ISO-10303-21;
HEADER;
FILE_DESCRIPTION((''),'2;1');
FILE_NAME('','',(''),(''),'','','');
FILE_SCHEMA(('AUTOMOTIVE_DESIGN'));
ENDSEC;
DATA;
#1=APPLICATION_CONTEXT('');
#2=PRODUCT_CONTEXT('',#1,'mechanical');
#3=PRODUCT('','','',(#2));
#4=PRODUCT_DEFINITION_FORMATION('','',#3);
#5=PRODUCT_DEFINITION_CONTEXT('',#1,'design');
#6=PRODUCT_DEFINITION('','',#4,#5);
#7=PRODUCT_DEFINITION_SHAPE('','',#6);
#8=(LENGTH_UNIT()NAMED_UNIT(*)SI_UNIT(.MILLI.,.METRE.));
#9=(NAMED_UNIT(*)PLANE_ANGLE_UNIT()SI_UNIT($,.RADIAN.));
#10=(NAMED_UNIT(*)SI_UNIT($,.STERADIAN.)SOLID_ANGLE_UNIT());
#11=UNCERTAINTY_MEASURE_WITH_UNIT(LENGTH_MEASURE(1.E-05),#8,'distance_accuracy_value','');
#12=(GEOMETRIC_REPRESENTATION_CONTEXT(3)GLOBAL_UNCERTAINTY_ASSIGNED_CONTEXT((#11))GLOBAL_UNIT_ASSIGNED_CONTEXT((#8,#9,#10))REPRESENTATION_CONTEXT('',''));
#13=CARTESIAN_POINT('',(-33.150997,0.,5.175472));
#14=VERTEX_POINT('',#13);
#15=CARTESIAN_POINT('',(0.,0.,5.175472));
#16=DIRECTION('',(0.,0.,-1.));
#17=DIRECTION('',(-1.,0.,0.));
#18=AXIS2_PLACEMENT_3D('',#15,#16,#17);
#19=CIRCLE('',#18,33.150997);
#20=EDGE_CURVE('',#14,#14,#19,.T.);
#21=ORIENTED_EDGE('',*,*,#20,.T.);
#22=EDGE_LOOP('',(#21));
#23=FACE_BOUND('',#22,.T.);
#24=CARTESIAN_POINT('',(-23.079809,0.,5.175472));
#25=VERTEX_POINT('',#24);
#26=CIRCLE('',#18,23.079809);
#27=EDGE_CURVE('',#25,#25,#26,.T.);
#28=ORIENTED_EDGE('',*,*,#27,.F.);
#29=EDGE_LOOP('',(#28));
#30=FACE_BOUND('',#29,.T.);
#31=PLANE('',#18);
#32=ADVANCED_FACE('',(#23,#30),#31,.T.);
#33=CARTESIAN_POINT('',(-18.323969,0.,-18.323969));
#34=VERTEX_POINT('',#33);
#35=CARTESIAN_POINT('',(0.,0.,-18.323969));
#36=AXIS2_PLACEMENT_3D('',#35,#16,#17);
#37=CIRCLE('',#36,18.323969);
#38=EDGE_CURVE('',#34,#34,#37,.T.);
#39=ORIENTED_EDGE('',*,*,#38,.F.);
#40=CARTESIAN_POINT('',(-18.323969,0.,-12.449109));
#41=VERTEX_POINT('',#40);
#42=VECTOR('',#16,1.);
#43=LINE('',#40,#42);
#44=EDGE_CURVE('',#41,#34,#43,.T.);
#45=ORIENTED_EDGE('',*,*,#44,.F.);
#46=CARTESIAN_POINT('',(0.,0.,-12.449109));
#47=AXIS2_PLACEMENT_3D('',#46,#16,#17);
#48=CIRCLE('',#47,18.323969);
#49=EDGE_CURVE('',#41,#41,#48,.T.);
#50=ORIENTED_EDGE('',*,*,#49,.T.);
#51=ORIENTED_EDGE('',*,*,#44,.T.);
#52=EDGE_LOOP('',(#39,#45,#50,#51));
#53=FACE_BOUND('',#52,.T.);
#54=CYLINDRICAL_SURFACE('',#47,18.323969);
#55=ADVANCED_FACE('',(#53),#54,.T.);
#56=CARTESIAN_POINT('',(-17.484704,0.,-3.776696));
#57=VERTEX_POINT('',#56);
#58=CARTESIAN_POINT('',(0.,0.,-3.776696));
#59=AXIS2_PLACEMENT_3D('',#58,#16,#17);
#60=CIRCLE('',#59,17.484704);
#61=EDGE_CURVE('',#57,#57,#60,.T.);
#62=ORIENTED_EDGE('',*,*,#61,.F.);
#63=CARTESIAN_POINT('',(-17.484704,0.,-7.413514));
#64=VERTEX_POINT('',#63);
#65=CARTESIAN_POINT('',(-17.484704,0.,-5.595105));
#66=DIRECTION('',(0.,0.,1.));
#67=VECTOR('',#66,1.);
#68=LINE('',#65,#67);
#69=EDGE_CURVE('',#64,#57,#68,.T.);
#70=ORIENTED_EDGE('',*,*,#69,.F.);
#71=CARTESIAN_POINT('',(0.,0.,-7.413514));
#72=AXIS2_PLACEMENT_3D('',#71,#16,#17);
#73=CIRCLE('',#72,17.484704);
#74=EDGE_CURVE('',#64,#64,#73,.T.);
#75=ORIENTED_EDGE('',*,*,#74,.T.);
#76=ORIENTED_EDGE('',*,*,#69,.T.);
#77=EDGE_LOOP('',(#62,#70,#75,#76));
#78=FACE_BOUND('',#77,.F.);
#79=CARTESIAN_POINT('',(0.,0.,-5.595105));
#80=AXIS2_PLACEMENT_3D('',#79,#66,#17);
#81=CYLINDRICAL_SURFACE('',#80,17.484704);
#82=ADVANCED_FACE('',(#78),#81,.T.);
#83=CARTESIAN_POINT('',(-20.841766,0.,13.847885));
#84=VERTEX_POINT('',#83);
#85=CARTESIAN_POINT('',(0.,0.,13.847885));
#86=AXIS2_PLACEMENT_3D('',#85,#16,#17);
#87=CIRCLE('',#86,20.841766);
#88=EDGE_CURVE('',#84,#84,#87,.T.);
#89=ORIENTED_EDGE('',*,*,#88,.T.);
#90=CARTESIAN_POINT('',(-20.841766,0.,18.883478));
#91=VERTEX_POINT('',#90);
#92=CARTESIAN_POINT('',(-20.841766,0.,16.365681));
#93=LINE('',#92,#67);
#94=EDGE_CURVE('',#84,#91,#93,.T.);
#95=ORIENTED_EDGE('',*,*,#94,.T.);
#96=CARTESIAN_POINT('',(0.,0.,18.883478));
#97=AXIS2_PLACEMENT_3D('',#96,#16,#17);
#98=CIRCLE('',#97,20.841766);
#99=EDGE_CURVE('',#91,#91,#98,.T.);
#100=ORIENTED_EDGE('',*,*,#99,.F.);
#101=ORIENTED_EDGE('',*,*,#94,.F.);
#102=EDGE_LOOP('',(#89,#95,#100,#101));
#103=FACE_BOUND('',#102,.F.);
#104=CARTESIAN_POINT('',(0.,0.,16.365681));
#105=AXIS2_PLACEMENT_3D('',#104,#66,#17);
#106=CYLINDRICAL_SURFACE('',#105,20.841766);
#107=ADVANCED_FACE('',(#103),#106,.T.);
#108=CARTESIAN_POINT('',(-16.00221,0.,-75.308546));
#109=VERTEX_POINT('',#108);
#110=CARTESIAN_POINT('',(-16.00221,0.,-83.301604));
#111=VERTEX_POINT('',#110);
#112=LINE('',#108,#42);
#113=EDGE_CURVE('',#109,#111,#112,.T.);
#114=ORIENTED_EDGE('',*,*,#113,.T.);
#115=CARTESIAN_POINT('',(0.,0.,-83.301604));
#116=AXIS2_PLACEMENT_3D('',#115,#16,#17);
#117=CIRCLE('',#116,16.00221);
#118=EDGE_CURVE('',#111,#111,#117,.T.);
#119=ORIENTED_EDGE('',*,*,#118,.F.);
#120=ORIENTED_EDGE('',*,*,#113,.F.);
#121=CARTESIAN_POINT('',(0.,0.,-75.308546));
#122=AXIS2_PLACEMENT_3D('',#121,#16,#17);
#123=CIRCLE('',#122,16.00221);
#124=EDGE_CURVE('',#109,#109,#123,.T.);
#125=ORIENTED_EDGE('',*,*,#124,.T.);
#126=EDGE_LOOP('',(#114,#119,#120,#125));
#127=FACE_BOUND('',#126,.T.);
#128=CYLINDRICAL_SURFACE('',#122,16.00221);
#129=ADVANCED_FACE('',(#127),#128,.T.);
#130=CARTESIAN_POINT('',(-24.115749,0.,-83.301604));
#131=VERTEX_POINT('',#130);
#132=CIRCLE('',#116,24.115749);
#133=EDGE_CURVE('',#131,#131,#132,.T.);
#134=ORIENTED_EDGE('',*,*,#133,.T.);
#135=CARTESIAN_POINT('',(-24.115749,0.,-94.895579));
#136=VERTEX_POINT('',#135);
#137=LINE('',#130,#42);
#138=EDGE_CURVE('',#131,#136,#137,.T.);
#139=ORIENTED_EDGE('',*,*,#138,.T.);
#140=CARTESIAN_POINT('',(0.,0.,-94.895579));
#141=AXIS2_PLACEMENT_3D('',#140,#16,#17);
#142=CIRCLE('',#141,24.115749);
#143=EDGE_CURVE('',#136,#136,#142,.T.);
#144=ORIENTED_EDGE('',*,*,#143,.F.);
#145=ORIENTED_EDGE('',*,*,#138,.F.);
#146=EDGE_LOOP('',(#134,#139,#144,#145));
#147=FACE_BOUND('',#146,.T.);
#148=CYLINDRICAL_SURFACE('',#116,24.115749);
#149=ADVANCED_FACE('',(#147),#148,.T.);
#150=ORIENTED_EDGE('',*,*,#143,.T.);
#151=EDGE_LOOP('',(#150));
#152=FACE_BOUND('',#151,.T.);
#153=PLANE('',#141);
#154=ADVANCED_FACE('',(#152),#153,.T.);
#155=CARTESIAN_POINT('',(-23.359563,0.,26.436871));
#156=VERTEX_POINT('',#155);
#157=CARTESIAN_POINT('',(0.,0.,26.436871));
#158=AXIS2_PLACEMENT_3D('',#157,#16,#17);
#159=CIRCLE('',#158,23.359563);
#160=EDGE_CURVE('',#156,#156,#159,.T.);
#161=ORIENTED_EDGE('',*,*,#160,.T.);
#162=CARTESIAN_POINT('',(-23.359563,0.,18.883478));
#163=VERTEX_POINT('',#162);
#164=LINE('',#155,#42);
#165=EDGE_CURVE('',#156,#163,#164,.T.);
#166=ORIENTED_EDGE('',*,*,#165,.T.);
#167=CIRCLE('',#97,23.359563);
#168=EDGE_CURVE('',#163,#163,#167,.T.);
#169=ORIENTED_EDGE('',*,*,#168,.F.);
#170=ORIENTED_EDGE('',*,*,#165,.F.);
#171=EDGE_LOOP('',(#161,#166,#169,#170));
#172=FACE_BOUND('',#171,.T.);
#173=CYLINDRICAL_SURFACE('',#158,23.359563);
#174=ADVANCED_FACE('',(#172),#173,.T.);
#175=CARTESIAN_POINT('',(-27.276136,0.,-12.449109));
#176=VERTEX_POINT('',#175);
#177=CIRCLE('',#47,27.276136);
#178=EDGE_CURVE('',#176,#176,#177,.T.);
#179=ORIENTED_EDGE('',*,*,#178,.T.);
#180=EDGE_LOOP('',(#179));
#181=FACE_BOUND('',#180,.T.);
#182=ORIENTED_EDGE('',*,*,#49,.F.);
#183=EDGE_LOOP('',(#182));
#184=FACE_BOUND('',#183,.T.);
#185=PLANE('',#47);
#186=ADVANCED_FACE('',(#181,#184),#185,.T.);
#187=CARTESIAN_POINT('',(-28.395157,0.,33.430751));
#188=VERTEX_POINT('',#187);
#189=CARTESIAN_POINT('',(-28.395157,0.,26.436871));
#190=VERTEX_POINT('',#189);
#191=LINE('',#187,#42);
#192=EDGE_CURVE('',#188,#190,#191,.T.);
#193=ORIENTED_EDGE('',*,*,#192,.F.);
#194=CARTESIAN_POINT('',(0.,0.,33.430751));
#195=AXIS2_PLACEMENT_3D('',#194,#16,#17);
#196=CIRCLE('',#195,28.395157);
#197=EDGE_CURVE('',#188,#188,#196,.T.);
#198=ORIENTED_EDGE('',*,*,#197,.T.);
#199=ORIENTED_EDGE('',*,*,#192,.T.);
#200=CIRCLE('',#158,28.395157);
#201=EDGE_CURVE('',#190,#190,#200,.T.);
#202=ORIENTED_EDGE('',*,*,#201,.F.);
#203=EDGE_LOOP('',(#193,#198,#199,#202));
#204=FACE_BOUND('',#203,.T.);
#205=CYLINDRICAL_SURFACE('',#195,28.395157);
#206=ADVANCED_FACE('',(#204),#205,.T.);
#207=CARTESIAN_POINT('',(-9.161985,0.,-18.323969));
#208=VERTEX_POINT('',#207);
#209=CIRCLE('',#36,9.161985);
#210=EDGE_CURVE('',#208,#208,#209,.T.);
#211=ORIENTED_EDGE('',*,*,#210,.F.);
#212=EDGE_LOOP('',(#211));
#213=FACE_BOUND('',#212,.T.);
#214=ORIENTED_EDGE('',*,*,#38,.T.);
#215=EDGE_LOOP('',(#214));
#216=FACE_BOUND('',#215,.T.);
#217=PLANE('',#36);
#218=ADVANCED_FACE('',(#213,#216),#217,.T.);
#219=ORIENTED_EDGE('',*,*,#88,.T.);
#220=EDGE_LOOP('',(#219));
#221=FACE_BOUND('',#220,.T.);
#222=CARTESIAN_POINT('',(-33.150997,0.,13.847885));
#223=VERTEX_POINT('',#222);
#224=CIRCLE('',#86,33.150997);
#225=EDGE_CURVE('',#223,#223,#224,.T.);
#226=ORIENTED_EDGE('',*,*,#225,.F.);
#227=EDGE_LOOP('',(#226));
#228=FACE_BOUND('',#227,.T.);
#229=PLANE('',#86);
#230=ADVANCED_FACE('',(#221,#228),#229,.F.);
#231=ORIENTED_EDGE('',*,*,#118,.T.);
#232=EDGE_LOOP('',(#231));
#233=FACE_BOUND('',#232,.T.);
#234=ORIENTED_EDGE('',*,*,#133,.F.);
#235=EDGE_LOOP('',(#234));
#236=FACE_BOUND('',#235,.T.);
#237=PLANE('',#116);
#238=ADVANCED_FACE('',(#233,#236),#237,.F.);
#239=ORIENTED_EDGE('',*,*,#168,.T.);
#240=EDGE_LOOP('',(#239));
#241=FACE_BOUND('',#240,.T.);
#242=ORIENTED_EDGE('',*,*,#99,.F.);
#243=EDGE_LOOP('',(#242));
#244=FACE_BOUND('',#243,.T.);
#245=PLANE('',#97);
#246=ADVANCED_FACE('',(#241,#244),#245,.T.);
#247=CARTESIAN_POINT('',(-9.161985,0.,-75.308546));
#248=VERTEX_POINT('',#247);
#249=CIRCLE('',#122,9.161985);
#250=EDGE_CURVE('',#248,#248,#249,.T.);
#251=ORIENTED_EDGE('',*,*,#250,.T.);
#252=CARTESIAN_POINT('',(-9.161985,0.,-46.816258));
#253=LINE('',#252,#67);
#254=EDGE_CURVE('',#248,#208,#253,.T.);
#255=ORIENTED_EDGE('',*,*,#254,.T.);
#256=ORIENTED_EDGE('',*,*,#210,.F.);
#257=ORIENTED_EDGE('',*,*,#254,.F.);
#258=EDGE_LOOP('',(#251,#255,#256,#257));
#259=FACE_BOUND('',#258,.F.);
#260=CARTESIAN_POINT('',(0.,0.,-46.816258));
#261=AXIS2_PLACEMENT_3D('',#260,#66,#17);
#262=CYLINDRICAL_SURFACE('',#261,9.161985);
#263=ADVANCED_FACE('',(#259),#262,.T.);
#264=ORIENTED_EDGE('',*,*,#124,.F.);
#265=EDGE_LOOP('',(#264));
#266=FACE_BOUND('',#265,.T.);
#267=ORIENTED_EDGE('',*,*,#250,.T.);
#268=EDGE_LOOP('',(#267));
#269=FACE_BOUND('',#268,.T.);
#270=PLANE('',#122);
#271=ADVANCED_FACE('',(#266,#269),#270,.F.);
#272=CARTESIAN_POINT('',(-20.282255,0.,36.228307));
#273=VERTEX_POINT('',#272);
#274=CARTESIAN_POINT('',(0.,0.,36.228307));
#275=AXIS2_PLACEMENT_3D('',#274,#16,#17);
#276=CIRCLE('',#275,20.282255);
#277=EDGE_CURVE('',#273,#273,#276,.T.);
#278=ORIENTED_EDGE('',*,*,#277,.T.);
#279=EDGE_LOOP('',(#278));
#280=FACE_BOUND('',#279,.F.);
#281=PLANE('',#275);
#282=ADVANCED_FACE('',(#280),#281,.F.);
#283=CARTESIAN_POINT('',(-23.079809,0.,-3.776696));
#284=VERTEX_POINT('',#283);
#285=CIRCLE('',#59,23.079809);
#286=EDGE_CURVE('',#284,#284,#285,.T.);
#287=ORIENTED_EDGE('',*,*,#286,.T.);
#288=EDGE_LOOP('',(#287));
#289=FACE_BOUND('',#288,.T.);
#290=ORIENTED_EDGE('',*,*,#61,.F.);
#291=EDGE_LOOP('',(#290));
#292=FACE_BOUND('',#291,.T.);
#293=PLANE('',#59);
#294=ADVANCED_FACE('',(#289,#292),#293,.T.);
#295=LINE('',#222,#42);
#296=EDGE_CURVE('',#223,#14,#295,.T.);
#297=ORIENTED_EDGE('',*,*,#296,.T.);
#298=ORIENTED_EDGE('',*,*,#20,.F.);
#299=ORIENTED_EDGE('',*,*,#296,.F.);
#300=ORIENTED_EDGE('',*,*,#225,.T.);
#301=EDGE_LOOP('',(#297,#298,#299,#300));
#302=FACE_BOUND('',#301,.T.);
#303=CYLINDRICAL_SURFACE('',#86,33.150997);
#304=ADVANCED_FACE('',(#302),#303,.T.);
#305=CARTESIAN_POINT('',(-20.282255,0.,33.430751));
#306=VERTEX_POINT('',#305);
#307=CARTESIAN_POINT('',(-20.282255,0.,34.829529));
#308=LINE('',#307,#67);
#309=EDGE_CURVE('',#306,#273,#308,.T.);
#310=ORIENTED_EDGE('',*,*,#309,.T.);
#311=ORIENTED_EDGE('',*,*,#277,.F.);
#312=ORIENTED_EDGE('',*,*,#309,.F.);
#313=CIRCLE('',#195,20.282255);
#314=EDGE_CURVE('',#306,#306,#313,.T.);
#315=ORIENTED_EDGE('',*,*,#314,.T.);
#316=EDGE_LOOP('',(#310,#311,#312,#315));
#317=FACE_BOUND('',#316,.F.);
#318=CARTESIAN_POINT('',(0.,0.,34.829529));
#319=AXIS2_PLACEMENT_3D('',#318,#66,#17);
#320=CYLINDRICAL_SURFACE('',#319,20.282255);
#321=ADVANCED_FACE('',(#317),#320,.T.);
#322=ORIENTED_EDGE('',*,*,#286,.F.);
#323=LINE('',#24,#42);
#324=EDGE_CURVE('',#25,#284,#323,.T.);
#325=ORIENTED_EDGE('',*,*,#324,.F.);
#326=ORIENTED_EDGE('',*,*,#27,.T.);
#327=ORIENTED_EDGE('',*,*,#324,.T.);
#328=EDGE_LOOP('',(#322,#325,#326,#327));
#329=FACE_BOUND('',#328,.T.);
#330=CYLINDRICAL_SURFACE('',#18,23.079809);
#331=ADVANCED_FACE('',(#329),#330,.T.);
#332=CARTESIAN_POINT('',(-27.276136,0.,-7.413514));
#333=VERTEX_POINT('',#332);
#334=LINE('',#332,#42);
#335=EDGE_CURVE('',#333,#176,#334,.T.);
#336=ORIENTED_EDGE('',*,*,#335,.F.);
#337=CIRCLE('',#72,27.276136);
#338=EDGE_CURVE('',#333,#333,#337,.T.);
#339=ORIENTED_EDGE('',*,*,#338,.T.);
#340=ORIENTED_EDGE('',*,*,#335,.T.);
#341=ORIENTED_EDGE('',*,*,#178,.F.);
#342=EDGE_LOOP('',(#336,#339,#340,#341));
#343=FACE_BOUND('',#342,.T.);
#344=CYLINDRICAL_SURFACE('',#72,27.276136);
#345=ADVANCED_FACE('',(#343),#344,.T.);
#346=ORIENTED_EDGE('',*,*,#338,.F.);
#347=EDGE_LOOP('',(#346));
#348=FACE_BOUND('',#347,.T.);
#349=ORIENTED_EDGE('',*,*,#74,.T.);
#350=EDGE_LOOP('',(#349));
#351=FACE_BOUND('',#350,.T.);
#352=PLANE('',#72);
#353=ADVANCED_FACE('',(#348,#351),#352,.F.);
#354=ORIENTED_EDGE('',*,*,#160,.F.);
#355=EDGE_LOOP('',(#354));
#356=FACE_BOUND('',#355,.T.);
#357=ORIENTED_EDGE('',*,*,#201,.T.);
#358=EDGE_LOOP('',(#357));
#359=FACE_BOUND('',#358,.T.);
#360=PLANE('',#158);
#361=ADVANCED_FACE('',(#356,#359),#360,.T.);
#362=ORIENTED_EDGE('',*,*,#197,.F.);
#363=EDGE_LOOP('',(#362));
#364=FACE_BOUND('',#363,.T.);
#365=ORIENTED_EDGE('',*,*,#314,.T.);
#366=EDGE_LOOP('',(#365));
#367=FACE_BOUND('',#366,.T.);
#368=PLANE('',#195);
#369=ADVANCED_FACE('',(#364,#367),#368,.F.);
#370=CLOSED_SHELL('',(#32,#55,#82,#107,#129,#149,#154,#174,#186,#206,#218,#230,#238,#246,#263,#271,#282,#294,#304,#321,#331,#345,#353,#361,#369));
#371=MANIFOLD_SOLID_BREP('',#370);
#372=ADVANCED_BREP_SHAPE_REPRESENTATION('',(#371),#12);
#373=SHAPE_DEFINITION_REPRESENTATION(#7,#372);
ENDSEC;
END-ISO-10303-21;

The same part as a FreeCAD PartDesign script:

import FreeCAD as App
import Part
import Sketcher

V = App.Vector


def add_polygon(sketch, points):
    """Adds a closed chain of lines whose ends are joined by coincident constraints."""
    first, n = sketch.GeometryCount, len(points)
    for a, b in zip(points, points[1:] + points[:1]):
        sketch.addGeometry(Part.LineSegment(App.Vector(*a, 0), App.Vector(*b, 0)), False)
    for i in range(n):
        sketch.addConstraint(Sketcher.Constraint("Coincident", first + i, 2, first + (i + 1) % n, 1))

doc = App.newDocument("Part")
body = doc.addObject("PartDesign::Body", "Body")

sketch1 = doc.addObject("Sketcher::SketchObject", "Sketch")
body.addObject(sketch1)
sketch1.AttachmentSupport = (doc.XZ_Plane, [""])
sketch1.MapMode = "FlatFace"
add_polygon(sketch1, [(-20.282255, 36.228307), (-20.282255, 33.430751), (-28.395157, 33.430751), (-28.395157, 26.436871), (-23.359563, 26.436871), (-23.359563, 18.883478), (-20.841766, 18.883478), (-20.841766, 13.847885), (-33.150997, 13.847885), (-33.150997, 5.175472), (-23.079809, 5.175472), (-23.079809, -3.776696), (-17.484704, -3.776696), (-17.484704, -7.413514), (-27.276136, -7.413514), (-27.276136, -12.449109), (-18.323969, -12.449109), (-18.323969, -18.323969), (-9.161985, -18.323969), (-9.161985, -75.308546), (-16.00221, -75.308546), (-16.00221, -83.301604), (-24.115749, -83.301604), (-24.115749, -94.895579), (0, -94.895579), (0, -18.323969), (0, -7.413514), (0, -3.776696), (0, 18.883478), (0, 33.430751), (0, 36.228307)])
sketch1.addConstraint([
    Sketcher.Constraint("Vertical", 0),
    Sketcher.Constraint("Horizontal", 1),
    Sketcher.Constraint("Vertical", 2),
    Sketcher.Constraint("Horizontal", 3),
    Sketcher.Constraint("Vertical", 4),
    Sketcher.Constraint("Horizontal", 5),
    Sketcher.Constraint("Vertical", 6),
    Sketcher.Constraint("Horizontal", 7),
    Sketcher.Constraint("Vertical", 8),
    Sketcher.Constraint("Horizontal", 9),
    Sketcher.Constraint("Vertical", 10),
    Sketcher.Constraint("Horizontal", 11),
    Sketcher.Constraint("Vertical", 12),
    Sketcher.Constraint("Horizontal", 13),
    Sketcher.Constraint("Vertical", 14),
    Sketcher.Constraint("Horizontal", 15),
    Sketcher.Constraint("Vertical", 16),
    Sketcher.Constraint("Horizontal", 17),
    Sketcher.Constraint("Vertical", 18),
    Sketcher.Constraint("Horizontal", 19),
    Sketcher.Constraint("Vertical", 20),
    Sketcher.Constraint("Horizontal", 21),
    Sketcher.Constraint("Vertical", 22),
    Sketcher.Constraint("Horizontal", 23),
    Sketcher.Constraint("Vertical", 24),
    Sketcher.Constraint("Vertical", 25),
    Sketcher.Constraint("Vertical", 26),
    Sketcher.Constraint("Vertical", 27),
    Sketcher.Constraint("Vertical", 28),
    Sketcher.Constraint("Vertical", 29),
    Sketcher.Constraint("Horizontal", 30),
    Sketcher.Constraint("PointOnObject", 23, 2, -2),
    Sketcher.Constraint("Horizontal", 17, 2, 24, 2),
    Sketcher.Constraint("Horizontal", 13, 2, 25, 2),
    Sketcher.Constraint("Horizontal", 11, 2, 26, 2),
    Sketcher.Constraint("Horizontal", 5, 2, 27, 2),
    Sketcher.Constraint("Horizontal", 1, 2, 28, 2),
    Sketcher.Constraint("Equal", 3, 6),
    Sketcher.Constraint("Equal", 15, 10),
    Sketcher.Constraint("Equal", 6, 14),
    Sketcher.Constraint("DistanceX", 1, 2, 1, 1, 8.112902),
    Sketcher.Constraint("DistanceX", 7, 2, 7, 1, 12.309231),
    Sketcher.Constraint("DistanceX", 9, 1, 9, 2, 10.071188),
    Sketcher.Constraint("DistanceX", 13, 2, 13, 1, 9.791432),
    Sketcher.Constraint("DistanceX", 21, 2, 21, 1, 8.113539),
    Sketcher.Constraint("DistanceX", 23, 1, 23, 2, 24.115749),
    Sketcher.Constraint("DistanceY", 2, 2, 2, 1, 6.99388),
    Sketcher.Constraint("DistanceY", 10, 2, 10, 1, 8.952168),
    Sketcher.Constraint("DistanceY", 12, 2, 12, 1, 3.636818),
    Sketcher.Constraint("DistanceY", 16, 2, 16, 1, 5.87486),
    Sketcher.Constraint("DistanceY", 24, 1, 24, 2, 76.57161),
    Sketcher.Constraint("DistanceY", 8, 2, 2, 2, 21.261399),
    Sketcher.Constraint("DistanceY", 12, 2, 6, 2, 21.261399),
    Sketcher.Constraint("DistanceX", 3, 1, 3, 2, 5.035594),
    Sketcher.Constraint("DistanceX", 5, 1, 5, 2, 2.517797),
    Sketcher.Constraint("DistanceX", 11, 1, 11, 2, 5.595105),
    Sketcher.Constraint("DistanceX", 17, 1, 17, 2, 9.161985),
    Sketcher.Constraint("DistanceX", 19, 2, 19, 1, 6.840225),
    Sketcher.Constraint("DistanceY", 0, 2, 0, 1, 2.797555),
    Sketcher.Constraint("DistanceY", 18, 2, 18, 1, 56.984577),
    Sketcher.Constraint("DistanceY", 20, 2, 20, 1, 7.993057),
    Sketcher.Constraint("DistanceY", -1, 1, 0, 2, 33.430751),
])
revolution = doc.addObject("PartDesign::Revolution", "Revolution")
body.addObject(revolution)
revolution.Profile = sketch1
revolution.ReferenceAxis = (sketch1, ["V_Axis"])
revolution.Angle = 360

doc.recompute()
